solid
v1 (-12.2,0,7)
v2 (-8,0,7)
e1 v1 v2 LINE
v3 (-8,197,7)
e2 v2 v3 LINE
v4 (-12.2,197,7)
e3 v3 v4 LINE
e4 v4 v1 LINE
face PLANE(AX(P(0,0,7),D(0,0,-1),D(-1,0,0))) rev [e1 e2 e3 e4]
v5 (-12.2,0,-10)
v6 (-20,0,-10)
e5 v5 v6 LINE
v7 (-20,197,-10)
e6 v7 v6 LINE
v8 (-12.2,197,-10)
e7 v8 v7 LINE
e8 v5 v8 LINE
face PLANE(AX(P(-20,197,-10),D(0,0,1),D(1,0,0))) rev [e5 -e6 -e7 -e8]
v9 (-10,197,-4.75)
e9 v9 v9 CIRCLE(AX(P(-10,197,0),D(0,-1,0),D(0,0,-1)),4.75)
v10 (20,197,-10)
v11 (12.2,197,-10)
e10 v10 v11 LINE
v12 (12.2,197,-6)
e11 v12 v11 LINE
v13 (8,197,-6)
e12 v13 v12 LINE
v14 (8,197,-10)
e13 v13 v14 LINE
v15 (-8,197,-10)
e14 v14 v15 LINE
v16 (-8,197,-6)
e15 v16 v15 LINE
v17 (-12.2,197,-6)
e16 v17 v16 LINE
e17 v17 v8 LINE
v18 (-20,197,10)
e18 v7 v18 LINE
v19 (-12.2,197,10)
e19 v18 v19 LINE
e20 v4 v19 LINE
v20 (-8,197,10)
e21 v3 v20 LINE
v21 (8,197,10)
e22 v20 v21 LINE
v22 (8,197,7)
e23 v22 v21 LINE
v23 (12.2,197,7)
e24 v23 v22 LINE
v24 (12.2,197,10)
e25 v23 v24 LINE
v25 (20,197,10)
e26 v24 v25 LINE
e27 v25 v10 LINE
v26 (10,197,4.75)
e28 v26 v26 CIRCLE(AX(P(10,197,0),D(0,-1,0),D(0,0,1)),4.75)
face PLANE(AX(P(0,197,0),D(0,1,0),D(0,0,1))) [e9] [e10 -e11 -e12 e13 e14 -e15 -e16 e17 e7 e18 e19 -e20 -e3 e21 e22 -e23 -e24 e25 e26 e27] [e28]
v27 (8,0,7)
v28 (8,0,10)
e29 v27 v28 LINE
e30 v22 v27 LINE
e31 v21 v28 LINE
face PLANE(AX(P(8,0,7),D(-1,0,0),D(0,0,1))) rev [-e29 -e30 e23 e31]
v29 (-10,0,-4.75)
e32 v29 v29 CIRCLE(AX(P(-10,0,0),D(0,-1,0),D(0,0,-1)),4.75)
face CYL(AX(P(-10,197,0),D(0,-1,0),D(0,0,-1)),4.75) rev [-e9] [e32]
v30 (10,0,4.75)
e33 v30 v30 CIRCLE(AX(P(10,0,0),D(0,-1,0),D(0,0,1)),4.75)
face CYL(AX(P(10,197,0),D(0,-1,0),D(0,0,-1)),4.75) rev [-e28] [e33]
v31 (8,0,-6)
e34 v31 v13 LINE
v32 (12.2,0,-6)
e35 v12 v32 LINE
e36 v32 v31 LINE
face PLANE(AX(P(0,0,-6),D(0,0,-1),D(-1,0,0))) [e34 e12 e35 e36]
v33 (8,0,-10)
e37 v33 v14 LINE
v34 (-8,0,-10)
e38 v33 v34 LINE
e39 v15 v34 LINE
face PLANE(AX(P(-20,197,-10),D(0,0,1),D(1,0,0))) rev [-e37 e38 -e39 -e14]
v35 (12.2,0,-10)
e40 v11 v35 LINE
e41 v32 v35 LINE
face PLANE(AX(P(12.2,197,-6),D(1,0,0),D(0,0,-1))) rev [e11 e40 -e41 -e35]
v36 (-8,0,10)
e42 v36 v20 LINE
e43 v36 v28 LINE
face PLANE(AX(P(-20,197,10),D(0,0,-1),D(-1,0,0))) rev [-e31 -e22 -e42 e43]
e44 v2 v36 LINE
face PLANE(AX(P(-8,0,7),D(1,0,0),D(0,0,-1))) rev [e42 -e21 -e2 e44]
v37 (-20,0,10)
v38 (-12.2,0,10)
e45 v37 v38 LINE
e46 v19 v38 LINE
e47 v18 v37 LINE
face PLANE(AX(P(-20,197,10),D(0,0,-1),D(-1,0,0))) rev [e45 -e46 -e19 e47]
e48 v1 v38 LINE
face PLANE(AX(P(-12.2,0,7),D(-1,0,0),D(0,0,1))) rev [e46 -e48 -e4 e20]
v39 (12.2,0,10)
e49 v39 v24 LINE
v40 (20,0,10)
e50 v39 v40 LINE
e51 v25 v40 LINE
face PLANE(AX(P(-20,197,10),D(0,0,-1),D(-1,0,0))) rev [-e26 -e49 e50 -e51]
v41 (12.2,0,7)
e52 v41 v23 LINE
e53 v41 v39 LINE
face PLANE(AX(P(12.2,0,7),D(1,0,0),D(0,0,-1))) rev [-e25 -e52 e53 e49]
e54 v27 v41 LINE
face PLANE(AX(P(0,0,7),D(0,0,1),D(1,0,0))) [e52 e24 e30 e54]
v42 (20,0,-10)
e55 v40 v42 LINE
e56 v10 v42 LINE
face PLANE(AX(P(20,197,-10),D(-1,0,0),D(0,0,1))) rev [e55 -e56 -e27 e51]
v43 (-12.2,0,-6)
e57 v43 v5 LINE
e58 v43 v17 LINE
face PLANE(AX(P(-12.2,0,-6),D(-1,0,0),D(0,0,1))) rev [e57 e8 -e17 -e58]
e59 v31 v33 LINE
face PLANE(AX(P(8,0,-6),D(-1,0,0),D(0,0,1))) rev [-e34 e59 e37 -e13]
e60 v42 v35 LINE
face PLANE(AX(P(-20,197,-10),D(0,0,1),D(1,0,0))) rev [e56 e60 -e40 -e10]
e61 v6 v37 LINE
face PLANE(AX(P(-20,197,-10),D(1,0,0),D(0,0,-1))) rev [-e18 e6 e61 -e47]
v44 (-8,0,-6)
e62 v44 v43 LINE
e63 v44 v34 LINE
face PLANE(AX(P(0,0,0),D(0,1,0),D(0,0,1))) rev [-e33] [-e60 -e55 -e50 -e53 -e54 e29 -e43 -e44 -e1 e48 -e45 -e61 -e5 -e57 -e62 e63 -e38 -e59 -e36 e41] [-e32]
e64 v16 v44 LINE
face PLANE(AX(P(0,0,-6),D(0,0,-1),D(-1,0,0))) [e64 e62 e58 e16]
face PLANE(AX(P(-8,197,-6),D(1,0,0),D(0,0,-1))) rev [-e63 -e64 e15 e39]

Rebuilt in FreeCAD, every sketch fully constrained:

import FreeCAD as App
import Part
import Sketcher

V = App.Vector
Q = App.Units.Quantity

doc = App.newDocument("Part")
body = doc.addObject("PartDesign::Body", "Body")

sketch1 = body.newObject("Sketcher::SketchObject", "Sketch")
sketch1.AttachmentSupport = (doc.getObject("XZ_Plane"), [""])
sketch1.MapMode = "FlatFace"
sketch1.addGeometry(Part.LineSegment(V(-20, -10, 0), V(-20, 10, 0)), False)
sketch1.addGeometry(Part.LineSegment(V(-20, 10, 0), V(20, 10, 0)), False)
sketch1.addGeometry(Part.LineSegment(V(20, 10, 0), V(20, -10, 0)), False)
sketch1.addGeometry(Part.LineSegment(V(20, -10, 0), V(-20, -10, 0)), False)
sketch1.addConstraint(Sketcher.Constraint("Coincident", 0, 2, 1, 1))
sketch1.addConstraint(Sketcher.Constraint("Coincident", 1, 2, 2, 1))
sketch1.addConstraint(Sketcher.Constraint("Coincident", 2, 2, 3, 1))
sketch1.addConstraint(Sketcher.Constraint("Coincident", 3, 2, 0, 1))
sketch1.addConstraint(Sketcher.Constraint("Vertical", 0))
sketch1.addConstraint(Sketcher.Constraint("Horizontal", 1))
sketch1.addConstraint(Sketcher.Constraint("Vertical", 2))
sketch1.addConstraint(Sketcher.Constraint("Horizontal", 3))
sketch1.addConstraint(Sketcher.Constraint("Symmetric", 0, 2, 2, 2, -1, 1))
sketch1.addConstraint(Sketcher.Constraint("DistanceX", 1, 1, 1, 2, Q("40 mm")))
sketch1.addConstraint(Sketcher.Constraint("DistanceY", 0, 1, 0, 2, Q("20 mm")))
pad1 = body.newObject("PartDesign::Pad", "Pad")
pad1.Profile = sketch1
pad1.Length = 197
pad1.Reversed = True

sketch2 = body.newObject("Sketcher::SketchObject", "Sketch001")
sketch2.AttachmentSupport = (doc.getObject("XZ_Plane"), [""])
sketch2.MapMode = "FlatFace"
sketch2.addGeometry(Part.Circle(V(-10, 0, 0), V(0, 0, 1), 4.8), False)
sketch2.addGeometry(Part.Circle(V(10, 0, 0), V(0, 0, 1), 4.8), False)
sketch2.addConstraint(Sketcher.Constraint("Equal", 0, 1))
sketch2.addConstraint(Sketcher.Constraint("Symmetric", 0, 3, 1, 3, -1, 1))
sketch2.addConstraint(Sketcher.Constraint("PointOnObject", 0, 3, -1))
sketch2.addConstraint(Sketcher.Constraint("Diameter", 0, Q("9.5 mm")))
sketch2.addConstraint(Sketcher.Constraint("DistanceX", 0, 3, -1, 1, Q("10 mm")))
pocket1 = body.newObject("PartDesign::Pocket", "Pocket")
pocket1.Profile = sketch2
pocket1.Type = "ThroughAll"

sketch3 = body.newObject("Sketcher::SketchObject", "Sketch002")
sketch3.AttachmentSupport = (doc.getObject("XY_Plane"), [""])
sketch3.MapMode = "FlatFace"
sketch3.AttachmentOffset = App.Placement(V(0, 0, 10), App.Rotation())
sketch3.addGeometry(Part.LineSegment(V(-12.2, 197, 0), V(-12.2, 0, 0)), False)
sketch3.addGeometry(Part.LineSegment(V(-12.2, 0, 0), V(-8, 0, 0)), False)
sketch3.addGeometry(Part.LineSegment(V(-8, 0, 0), V(-8, 197, 0)), False)
sketch3.addGeometry(Part.LineSegment(V(-8, 197, 0), V(-12.2, 197, 0)), False)
sketch3.addGeometry(Part.LineSegment(V(8, 197, 0), V(8, 0, 0)), False)
sketch3.addGeometry(Part.LineSegment(V(8, 0, 0), V(12.2, 0, 0)), False)
sketch3.addGeometry(Part.LineSegment(V(12.2, 0, 0), V(12.2, 197, 0)), False)
sketch3.addGeometry(Part.LineSegment(V(12.2, 197, 0), V(8, 197, 0)), False)
sketch3.addConstraint(Sketcher.Constraint("Coincident", 0, 2, 1, 1))
sketch3.addConstraint(Sketcher.Constraint("Coincident", 1, 2, 2, 1))
sketch3.addConstraint(Sketcher.Constraint("Coincident", 2, 2, 3, 1))
sketch3.addConstraint(Sketcher.Constraint("Coincident", 3, 2, 0, 1))
sketch3.addConstraint(Sketcher.Constraint("Coincident", 4, 2, 5, 1))
sketch3.addConstraint(Sketcher.Constraint("Coincident", 5, 2, 6, 1))
sketch3.addConstraint(Sketcher.Constraint("Coincident", 6, 2, 7, 1))
sketch3.addConstraint(Sketcher.Constraint("Coincident", 7, 2, 4, 1))
sketch3.addConstraint(Sketcher.Constraint("Vertical", 0))
sketch3.addConstraint(Sketcher.Constraint("Horizontal", 1))
sketch3.addConstraint(Sketcher.Constraint("Vertical", 2))
sketch3.addConstraint(Sketcher.Constraint("Horizontal", 3))
sketch3.addConstraint(Sketcher.Constraint("Vertical", 4))
sketch3.addConstraint(Sketcher.Constraint("Horizontal", 5))
sketch3.addConstraint(Sketcher.Constraint("Vertical", 6))
sketch3.addConstraint(Sketcher.Constraint("Horizontal", 7))
sketch3.addConstraint(Sketcher.Constraint("Symmetric", 1, 2, 4, 2, -1, 1))
sketch3.addConstraint(Sketcher.Constraint("Symmetric", 0, 2, 5, 2, -2))
sketch3.addConstraint(Sketcher.Constraint("Horizontal", 3, 2, 6, 2))
sketch3.addConstraint(Sketcher.Constraint("DistanceY", 0, 2, 0, 1, Q("197 mm")))
sketch3.addConstraint(Sketcher.Constraint("DistanceX", 1, 1, 1, 2, Q("4.2 mm")))
sketch3.addConstraint(Sketcher.Constraint("DistanceX", 1, 2, -1, 1, Q("8 mm")))
pocket2 = body.newObject("PartDesign::Pocket", "Pocket001")
pocket2.Profile = sketch3
pocket2.Length = 3

sketch4 = body.newObject("Sketcher::SketchObject", "Sketch003")
sketch4.AttachmentSupport = (doc.getObject("XY_Plane"), [""])
sketch4.MapMode = "FlatFace"
sketch4.AttachmentOffset = App.Placement(V(0, 0, -10), App.Rotation())
sketch4.addGeometry(Part.LineSegment(V(12.2, 197, 0), V(12.2, 0, 0)), False)
sketch4.addGeometry(Part.LineSegment(V(12.2, 0, 0), V(8, 0, 0)), False)
sketch4.addGeometry(Part.LineSegment(V(8, 0, 0), V(8, 197, 0)), False)
sketch4.addGeometry(Part.LineSegment(V(8, 197, 0), V(12.2, 197, 0)), False)
sketch4.addGeometry(Part.LineSegment(V(-8, 197, 0), V(-8, 0, 0)), False)
sketch4.addGeometry(Part.LineSegment(V(-8, 0, 0), V(-12.2, 0, 0)), False)
sketch4.addGeometry(Part.LineSegment(V(-12.2, 0, 0), V(-12.2, 197, 0)), False)
sketch4.addGeometry(Part.LineSegment(V(-12.2, 197, 0), V(-8, 197, 0)), False)
sketch4.addConstraint(Sketcher.Constraint("Coincident", 0, 2, 1, 1))
sketch4.addConstraint(Sketcher.Constraint("Coincident", 1, 2, 2, 1))
sketch4.addConstraint(Sketcher.Constraint("Coincident", 2, 2, 3, 1))
sketch4.addConstraint(Sketcher.Constraint("Coincident", 3, 2, 0, 1))
sketch4.addConstraint(Sketcher.Constraint("Coincident", 4, 2, 5, 1))
sketch4.addConstraint(Sketcher.Constraint("Coincident", 5, 2, 6, 1))
sketch4.addConstraint(Sketcher.Constraint("Coincident", 6, 2, 7, 1))
sketch4.addConstraint(Sketcher.Constraint("Coincident", 7, 2, 4, 1))
sketch4.addConstraint(Sketcher.Constraint("Vertical", 0))
sketch4.addConstraint(Sketcher.Constraint("Horizontal", 1))
sketch4.addConstraint(Sketcher.Constraint("Vertical", 2))
sketch4.addConstraint(Sketcher.Constraint("Horizontal", 3))
sketch4.addConstraint(Sketcher.Constraint("Vertical", 4))
sketch4.addConstraint(Sketcher.Constraint("Horizontal", 5))
sketch4.addConstraint(Sketcher.Constraint("Vertical", 6))
sketch4.addConstraint(Sketcher.Constraint("Horizontal", 7))
sketch4.addConstraint(Sketcher.Constraint("Symmetric", 1, 2, 4, 2, -1, 1))
sketch4.addConstraint(Sketcher.Constraint("Symmetric", 0, 2, 5, 2, -2))
sketch4.addConstraint(Sketcher.Constraint("Horizontal", 3, 2, 6, 2))
sketch4.addConstraint(Sketcher.Constraint("DistanceY", 0, 2, 0, 1, Q("197 mm")))
sketch4.addConstraint(Sketcher.Constraint("DistanceX", 1, 2, 1, 1, Q("4.2 mm")))
sketch4.addConstraint(Sketcher.Constraint("DistanceX", -1, 1, 1, 2, Q("8 mm")))
pocket3 = body.newObject("PartDesign::Pocket", "Pocket002")
pocket3.Profile = sketch4
pocket3.Length = 4
pocket3.Reversed = True

doc.recompute()
